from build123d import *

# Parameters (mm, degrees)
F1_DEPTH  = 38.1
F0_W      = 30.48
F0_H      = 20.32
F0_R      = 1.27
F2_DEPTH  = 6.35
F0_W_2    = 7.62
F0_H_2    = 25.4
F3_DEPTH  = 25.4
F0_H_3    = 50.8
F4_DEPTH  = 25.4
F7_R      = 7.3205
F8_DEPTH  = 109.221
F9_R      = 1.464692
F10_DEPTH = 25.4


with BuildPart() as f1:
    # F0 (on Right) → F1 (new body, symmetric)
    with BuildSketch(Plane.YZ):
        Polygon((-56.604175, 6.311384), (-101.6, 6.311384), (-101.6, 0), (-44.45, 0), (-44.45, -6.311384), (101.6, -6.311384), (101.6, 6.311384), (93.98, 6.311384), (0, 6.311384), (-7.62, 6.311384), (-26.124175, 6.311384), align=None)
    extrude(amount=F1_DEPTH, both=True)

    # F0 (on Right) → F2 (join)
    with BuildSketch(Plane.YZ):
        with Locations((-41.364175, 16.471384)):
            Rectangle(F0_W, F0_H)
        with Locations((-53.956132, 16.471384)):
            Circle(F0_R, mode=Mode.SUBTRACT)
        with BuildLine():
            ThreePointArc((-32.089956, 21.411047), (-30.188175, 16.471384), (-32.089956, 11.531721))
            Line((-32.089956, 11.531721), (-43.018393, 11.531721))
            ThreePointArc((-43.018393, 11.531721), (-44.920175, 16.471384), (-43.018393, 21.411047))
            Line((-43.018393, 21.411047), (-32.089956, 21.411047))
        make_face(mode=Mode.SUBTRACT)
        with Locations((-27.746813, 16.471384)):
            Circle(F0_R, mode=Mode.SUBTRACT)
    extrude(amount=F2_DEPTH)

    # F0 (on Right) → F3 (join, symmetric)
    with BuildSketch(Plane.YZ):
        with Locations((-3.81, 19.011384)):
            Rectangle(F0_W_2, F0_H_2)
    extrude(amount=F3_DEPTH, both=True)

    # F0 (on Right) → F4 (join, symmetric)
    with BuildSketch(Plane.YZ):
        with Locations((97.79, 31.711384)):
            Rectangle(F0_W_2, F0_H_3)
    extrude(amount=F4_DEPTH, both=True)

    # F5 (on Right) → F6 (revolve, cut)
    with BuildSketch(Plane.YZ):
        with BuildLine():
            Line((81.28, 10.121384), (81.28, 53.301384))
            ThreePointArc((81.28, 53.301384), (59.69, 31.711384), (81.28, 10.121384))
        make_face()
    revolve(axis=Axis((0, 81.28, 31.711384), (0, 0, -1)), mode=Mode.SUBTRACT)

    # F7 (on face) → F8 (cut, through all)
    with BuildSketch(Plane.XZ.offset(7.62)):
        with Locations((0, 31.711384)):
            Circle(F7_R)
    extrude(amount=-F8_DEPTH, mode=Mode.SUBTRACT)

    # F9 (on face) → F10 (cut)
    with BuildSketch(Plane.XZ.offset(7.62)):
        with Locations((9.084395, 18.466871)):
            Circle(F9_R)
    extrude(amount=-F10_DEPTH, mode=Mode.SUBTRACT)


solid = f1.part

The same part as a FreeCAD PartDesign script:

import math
import FreeCAD as App
import Part
import Sketcher
from FreeCAD import Vector
Q = App.Units.Quantity

doc = App.newDocument("Part")
params = doc.addObject("Spreadsheet::Sheet", "Params")
for row, (alias, value) in enumerate([
    ("sketch1_width", "8 in"),
    ("sketch1_width2", "2.25 in"),
    ("pad1_length", "3 in"),
    ("sketch2_diameter", "0.1 in"),
    ("sketch2_radius", "0.29 in"),
    ("sketch2_radius2", "0.2899999 in"),
    ("sketch2_width", "1.2 in"),
    ("sketch2_height", "0.8 in"),
    ("pad2_length", "0.25 in"),
    ("sketch3_height", "1 in"),
    ("sketch3_width", "0.3 in"),
    ("pad3_length", "2 in"),
    ("sketch4_height", "2 in"),
    ("sketch4_width", "0.3 in"),
    ("pad4_length", "2 in"),
    ("sketch5_radius", "0.85 in"),
    ("groove_angle", "360 deg"),
    ("pocket2_length", "1 in"),
], start=1):
    params.set(f"A{row}", alias)
    params.set(f"B{row}", "=" + value)
    params.setAlias(f"B{row}", alias)

body = doc.addObject("PartDesign::Body", "Body")

sketch1 = doc.addObject("Sketcher::SketchObject", "Sketch")
body.addObject(sketch1)
sketch1.AttachmentSupport = (doc.YZ_Plane, [""])
sketch1.MapMode = "FlatFace"
sketch1.addGeometry([
    Part.LineSegment(Vector(-102, 6, 0), Vector(-102, 0, 0)),
    Part.LineSegment(Vector(-102, 0, 0), Vector(-44, 0, 0)),
    Part.LineSegment(Vector(-44, 0, 0), Vector(-44, -6, 0)),
    Part.LineSegment(Vector(-44, -6, 0), Vector(102, -6, 0)),
    Part.LineSegment(Vector(102, -6, 0), Vector(102, 6, 0)),
    Part.LineSegment(Vector(102, 6, 0), Vector(-102, 6, 0)),
], False)
sketch1.addConstraint([
    Sketcher.Constraint("Coincident", 0, 2, 1, 1),
    Sketcher.Constraint("Coincident", 1, 2, 2, 1),
    Sketcher.Constraint("Coincident", 2, 2, 3, 1),
    Sketcher.Constraint("Coincident", 3, 2, 4, 1),
    Sketcher.Constraint("Coincident", 4, 2, 5, 1),
    Sketcher.Constraint("Coincident", 5, 2, 0, 1),
    Sketcher.Constraint("Vertical", 0),
    Sketcher.Constraint("Horizontal", 1),
    Sketcher.Constraint("Vertical", 2),
    Sketcher.Constraint("Horizontal", 3),
    Sketcher.Constraint("Vertical", 4),
    Sketcher.Constraint("Horizontal", 5),
    Sketcher.Constraint("Symmetric", 3, 2, 5, 2, -1, 1),
    Sketcher.Constraint("PointOnObject", 0, 2, -1),
    Sketcher.Constraint("DistanceX", 5, 2, 5, 1, Q("8 in")),
    Sketcher.Constraint("DistanceX", 1, 1, 1, 2, Q("2.25 in")),
    Sketcher.Constraint("DistanceY", 4, 1, 4, 2, 12.622768),
])
sketch1.setExpression("Constraints[14]", "Params.sketch1_width")
sketch1.setExpression("Constraints[15]", "Params.sketch1_width2")
pad1 = doc.addObject("PartDesign::Pad", "Pad")
body.addObject(pad1)
pad1.Profile = sketch1
pad1.setExpression("Length", "Params.pad1_length")
pad1.Midplane = True

sketch2 = doc.addObject("Sketcher::SketchObject", "Sketch001")
body.addObject(sketch2)
sketch2.AttachmentSupport = (doc.YZ_Plane, [""])
sketch2.MapMode = "FlatFace"
sketch2.addGeometry([
    Part.LineSegment(Vector(-56.6, 26.6, 0), Vector(-56.6, 6.3, 0)),
    Part.LineSegment(Vector(-56.6, 6.3, 0), Vector(-26.1, 6.3, 0)),
    Part.LineSegment(Vector(-26.1, 6.3, 0), Vector(-26.1, 26.6, 0)),
    Part.LineSegment(Vector(-26.1, 26.6, 0), Vector(-56.6, 26.6, 0)),
    Part.Circle(Vector(-54, 16.5, 0), Vector(0, 0, 1), 1.3),
    Part.LineSegment(Vector(-43, 21.4, 0), Vector(-32.1, 21.4, 0)),
    Part.ArcOfCircle(Part.Circle(Vector(-37.6, 16.5, 0), Vector(0, 0, 1), 7.4), math.radians(-42), math.radians(42)),
    Part.LineSegment(Vector(-32.1, 11.5, 0), Vector(-43, 11.5, 0)),
    Part.ArcOfCircle(Part.Circle(Vector(-37.6, 16.5, 0), Vector(0, 0, 1), 7.4), math.radians(138), math.radians(222)),
    Part.Circle(Vector(-27.7, 16.5, 0), Vector(0, 0, 1), 1.3),
], False)
sketch2.addConstraint([
    Sketcher.Constraint("Coincident", 0, 2, 1, 1),
    Sketcher.Constraint("Coincident", 1, 2, 2, 1),
    Sketcher.Constraint("Coincident", 2, 2, 3, 1),
    Sketcher.Constraint("Coincident", 3, 2, 0, 1),
    Sketcher.Constraint("Coincident", 5, 2, 6, 2),
    Sketcher.Constraint("Coincident", 6, 1, 7, 1),
    Sketcher.Constraint("Coincident", 7, 2, 8, 2),
    Sketcher.Constraint("Coincident", 8, 1, 5, 1),
    Sketcher.Constraint("Vertical", 0),
    Sketcher.Constraint("Horizontal", 1),
    Sketcher.Constraint("Vertical", 2),
    Sketcher.Constraint("Horizontal", 3),
    Sketcher.Constraint("Horizontal", 5),
    Sketcher.Constraint("Horizontal", 7),
    Sketcher.Constraint("Coincident", 8, 3, 6, 3),
    Sketcher.Constraint("Equal", 4, 9),
    Sketcher.Constraint("Horizontal", 4, 3, 6, 3),
    Sketcher.Constraint("Horizontal", 8, 3, 9, 3),
    Sketcher.Constraint("Vertical", 5, 2, 6, 1),
    Sketcher.Constraint("Diameter", 4, Q("0.1 in")),
    Sketcher.Constraint("Radius", 6, Q("0.29 in")),
    Sketcher.Constraint("Radius", 8, Q("0.2899999 in")),
    Sketcher.Constraint("DistanceX", 1, 1, 1, 2, Q("1.2 in")),
    Sketcher.Constraint("DistanceY", 0, 2, 0, 1, Q("0.8 in")),
    Sketcher.Constraint("DistanceY", 0, 2, 4, 3, Q("0.4 in")),
    Sketcher.Constraint("DistanceX", 0, 2, 8, 3, Q("0.7499999 in")),
    Sketcher.Constraint("DistanceX", 5, 1, 5, 2, 10.928437),
    Sketcher.Constraint("DistanceX", 4, 3, -1, 1, 53.956132),
    Sketcher.Constraint("DistanceY", -1, 1, 6, 1, 11.531721),
    Sketcher.Constraint("DistanceX", 4, 3, 9, 3, 26.209319),
    Sketcher.Constraint("DistanceX", 0, 2, 9, 3, 28.857362),
])
sketch2.setExpression("Constraints[19]", "Params.sketch2_diameter")
sketch2.setExpression("Constraints[20]", "Params.sketch2_radius")
sketch2.setExpression("Constraints[21]", "Params.sketch2_radius2")
sketch2.setExpression("Constraints[22]", "Params.sketch2_width")
sketch2.setExpression("Constraints[23]", "Params.sketch2_height")
pad2 = doc.addObject("PartDesign::Pad", "Pad001")
body.addObject(pad2)
pad2.Profile = sketch2
pad2.setExpression("Length", "Params.pad2_length")

sketch3 = doc.addObject("Sketcher::SketchObject", "Sketch002")
body.addObject(sketch3)
sketch3.AttachmentSupport = (doc.YZ_Plane, [""])
sketch3.MapMode = "FlatFace"
sketch3.addGeometry([
    Part.LineSegment(Vector(-8, 32, 0), Vector(-8, 6, 0)),
    Part.LineSegment(Vector(-8, 6, 0), Vector(0, 6, 0)),
    Part.LineSegment(Vector(0, 6, 0), Vector(0, 32, 0)),
    Part.LineSegment(Vector(0, 32, 0), Vector(-8, 32, 0)),
], False)
sketch3.addConstraint([
    Sketcher.Constraint("Coincident", 0, 2, 1, 1),
    Sketcher.Constraint("Coincident", 1, 2, 2, 1),
    Sketcher.Constraint("Coincident", 2, 2, 3, 1),
    Sketcher.Constraint("Coincident", 3, 2, 0, 1),
    Sketcher.Constraint("Vertical", 0),
    Sketcher.Constraint("Horizontal", 1),
    Sketcher.Constraint("Vertical", 2),
    Sketcher.Constraint("Horizontal", 3),
    Sketcher.Constraint("PointOnObject", 1, 2, -2),
    Sketcher.Constraint("DistanceY", 0, 2, 0, 1, Q("1 in")),
    Sketcher.Constraint("DistanceX", 1, 1, 1, 2, Q("0.3 in")),
    Sketcher.Constraint("DistanceY", -1, 1, 0, 2, 6.311384),
])
sketch3.setExpression("Constraints[9]", "Params.sketch3_height")
sketch3.setExpression("Constraints[10]", "Params.sketch3_width")
pad3 = doc.addObject("PartDesign::Pad", "Pad002")
body.addObject(pad3)
pad3.Profile = sketch3
pad3.setExpression("Length", "Params.pad3_length")
pad3.Midplane = True

sketch4 = doc.addObject("Sketcher::SketchObject", "Sketch003")
body.addObject(sketch4)
sketch4.AttachmentSupport = (doc.YZ_Plane, [""])
sketch4.MapMode = "FlatFace"
sketch4.addGeometry([
    Part.LineSegment(Vector(94, 57, 0), Vector(94, 6, 0)),
    Part.LineSegment(Vector(94, 6, 0), Vector(102, 6, 0)),
    Part.LineSegment(Vector(102, 6, 0), Vector(102, 57, 0)),
    Part.LineSegment(Vector(102, 57, 0), Vector(94, 57, 0)),
], False)
sketch4.addConstraint([
    Sketcher.Constraint("Coincident", 0, 2, 1, 1),
    Sketcher.Constraint("Coincident", 1, 2, 2, 1),
    Sketcher.Constraint("Coincident", 2, 2, 3, 1),
    Sketcher.Constraint("Coincident", 3, 2, 0, 1),
    Sketcher.Constraint("Vertical", 0),
    Sketcher.Constraint("Horizontal", 1),
    Sketcher.Constraint("Vertical", 2),
    Sketcher.Constraint("Horizontal", 3),
    Sketcher.Constraint("DistanceY", 0, 2, 0, 1, Q("2 in")),
    Sketcher.Constraint("DistanceX", 1, 1, 1, 2, Q("0.3 in")),
    Sketcher.Constraint("DistanceX", -1, 1, 1, 2, Q("4 in")),
    Sketcher.Constraint("DistanceY", -1, 1, 0, 2, 6.311384),
])
sketch4.setExpression("Constraints[8]", "Params.sketch4_height")
sketch4.setExpression("Constraints[9]", "Params.sketch4_width")
pad4 = doc.addObject("PartDesign::Pad", "Pad003")
body.addObject(pad4)
pad4.Profile = sketch4
pad4.setExpression("Length", "Params.pad4_length")
pad4.Midplane = True

sketch5 = doc.addObject("Sketcher::SketchObject", "Sketch004")
body.addObject(sketch5)
sketch5.AttachmentSupport = (doc.YZ_Plane, [""])
sketch5.MapMode = "FlatFace"
sketch5.addGeometry([
    Part.LineSegment(Vector(81, 10, 0), Vector(81, 53, 0)),
    Part.ArcOfCircle(Part.Circle(Vector(81, 32, 0), Vector(0, 0, 1), 22), math.radians(90), math.radians(270)),
], False)
sketch5.addGeometry(Part.LineSegment(Vector(81, 53, 0), Vector(81, 10, 0)), True)
sketch5.addConstraint([
    Sketcher.Constraint("Coincident", 0, 1, 1, 2),
    Sketcher.Constraint("Coincident", 1, 1, 0, 2),
    Sketcher.Constraint("Vertical", 0),
    Sketcher.Constraint("Vertical", 2),
    Sketcher.Constraint("Coincident", 2, 1, 1, 1),
    Sketcher.Constraint("Vertical", 1, 3, 0, 1),
    Sketcher.Constraint("Equal", 0, 2),
    Sketcher.Constraint("Radius", 1, Q("0.85 in")),
    Sketcher.Constraint("DistanceX", -1, 1, 1, 3, Q("3.2 in")),
    Sketcher.Constraint("DistanceY", -1, 1, 1, 3, 31.711384),
])
sketch5.setExpression("Constraints[7]", "Params.sketch5_radius")
groove = doc.addObject("PartDesign::Groove", "Groove")
body.addObject(groove)
groove.Profile = sketch5
groove.ReferenceAxis = (sketch5, ["Axis0"])
groove.setExpression("Angle", "Params.groove_angle")

sketch6 = doc.addObject("Sketcher::SketchObject", "Sketch005")
body.addObject(sketch6)
sketch6.AttachmentSupport = (doc.XZ_Plane, [""])
sketch6.MapMode = "FlatFace"
sketch6.AttachmentOffset = App.Placement(Vector(0, 0, 0.3 * 25.4), App.Rotation())
sketch6.addGeometry(Part.Circle(Vector(0, 32, 0), Vector(0, 0, 1), 7), False)
sketch6.addConstraint([
    Sketcher.Constraint("PointOnObject", 0, 3, -2),
    Sketcher.Constraint("Diameter", 0, 14.641),
    Sketcher.Constraint("DistanceY", -1, 1, 0, 3, 31.711384),
])
pocket1 = doc.addObject("PartDesign::Pocket", "Pocket")
body.addObject(pocket1)
pocket1.Profile = sketch6
pocket1.Type = "ThroughAll"

sketch7 = doc.addObject("Sketcher::SketchObject", "Sketch006")
body.addObject(sketch7)
sketch7.AttachmentSupport = (doc.XZ_Plane, [""])
sketch7.MapMode = "FlatFace"
sketch7.AttachmentOffset = App.Placement(Vector(0, 0, 0.3 * 25.4), App.Rotation())
sketch7.addGeometry(Part.Circle(Vector(9.1, 18.5, 0), Vector(0, 0, 1), 1.5), False)
sketch7.addConstraint([
    Sketcher.Constraint("Diameter", 0, 2.929384),
    Sketcher.Constraint("DistanceY", -1, 1, 0, 3, 18.466871),
    Sketcher.Constraint("DistanceX", -1, 1, 0, 3, 9.084395),
])
pocket2 = doc.addObject("PartDesign::Pocket", "Pocket001")
body.addObject(pocket2)
pocket2.Profile = sketch7
pocket2.setExpression("Length", "Params.pocket2_length")

doc.recompute()
